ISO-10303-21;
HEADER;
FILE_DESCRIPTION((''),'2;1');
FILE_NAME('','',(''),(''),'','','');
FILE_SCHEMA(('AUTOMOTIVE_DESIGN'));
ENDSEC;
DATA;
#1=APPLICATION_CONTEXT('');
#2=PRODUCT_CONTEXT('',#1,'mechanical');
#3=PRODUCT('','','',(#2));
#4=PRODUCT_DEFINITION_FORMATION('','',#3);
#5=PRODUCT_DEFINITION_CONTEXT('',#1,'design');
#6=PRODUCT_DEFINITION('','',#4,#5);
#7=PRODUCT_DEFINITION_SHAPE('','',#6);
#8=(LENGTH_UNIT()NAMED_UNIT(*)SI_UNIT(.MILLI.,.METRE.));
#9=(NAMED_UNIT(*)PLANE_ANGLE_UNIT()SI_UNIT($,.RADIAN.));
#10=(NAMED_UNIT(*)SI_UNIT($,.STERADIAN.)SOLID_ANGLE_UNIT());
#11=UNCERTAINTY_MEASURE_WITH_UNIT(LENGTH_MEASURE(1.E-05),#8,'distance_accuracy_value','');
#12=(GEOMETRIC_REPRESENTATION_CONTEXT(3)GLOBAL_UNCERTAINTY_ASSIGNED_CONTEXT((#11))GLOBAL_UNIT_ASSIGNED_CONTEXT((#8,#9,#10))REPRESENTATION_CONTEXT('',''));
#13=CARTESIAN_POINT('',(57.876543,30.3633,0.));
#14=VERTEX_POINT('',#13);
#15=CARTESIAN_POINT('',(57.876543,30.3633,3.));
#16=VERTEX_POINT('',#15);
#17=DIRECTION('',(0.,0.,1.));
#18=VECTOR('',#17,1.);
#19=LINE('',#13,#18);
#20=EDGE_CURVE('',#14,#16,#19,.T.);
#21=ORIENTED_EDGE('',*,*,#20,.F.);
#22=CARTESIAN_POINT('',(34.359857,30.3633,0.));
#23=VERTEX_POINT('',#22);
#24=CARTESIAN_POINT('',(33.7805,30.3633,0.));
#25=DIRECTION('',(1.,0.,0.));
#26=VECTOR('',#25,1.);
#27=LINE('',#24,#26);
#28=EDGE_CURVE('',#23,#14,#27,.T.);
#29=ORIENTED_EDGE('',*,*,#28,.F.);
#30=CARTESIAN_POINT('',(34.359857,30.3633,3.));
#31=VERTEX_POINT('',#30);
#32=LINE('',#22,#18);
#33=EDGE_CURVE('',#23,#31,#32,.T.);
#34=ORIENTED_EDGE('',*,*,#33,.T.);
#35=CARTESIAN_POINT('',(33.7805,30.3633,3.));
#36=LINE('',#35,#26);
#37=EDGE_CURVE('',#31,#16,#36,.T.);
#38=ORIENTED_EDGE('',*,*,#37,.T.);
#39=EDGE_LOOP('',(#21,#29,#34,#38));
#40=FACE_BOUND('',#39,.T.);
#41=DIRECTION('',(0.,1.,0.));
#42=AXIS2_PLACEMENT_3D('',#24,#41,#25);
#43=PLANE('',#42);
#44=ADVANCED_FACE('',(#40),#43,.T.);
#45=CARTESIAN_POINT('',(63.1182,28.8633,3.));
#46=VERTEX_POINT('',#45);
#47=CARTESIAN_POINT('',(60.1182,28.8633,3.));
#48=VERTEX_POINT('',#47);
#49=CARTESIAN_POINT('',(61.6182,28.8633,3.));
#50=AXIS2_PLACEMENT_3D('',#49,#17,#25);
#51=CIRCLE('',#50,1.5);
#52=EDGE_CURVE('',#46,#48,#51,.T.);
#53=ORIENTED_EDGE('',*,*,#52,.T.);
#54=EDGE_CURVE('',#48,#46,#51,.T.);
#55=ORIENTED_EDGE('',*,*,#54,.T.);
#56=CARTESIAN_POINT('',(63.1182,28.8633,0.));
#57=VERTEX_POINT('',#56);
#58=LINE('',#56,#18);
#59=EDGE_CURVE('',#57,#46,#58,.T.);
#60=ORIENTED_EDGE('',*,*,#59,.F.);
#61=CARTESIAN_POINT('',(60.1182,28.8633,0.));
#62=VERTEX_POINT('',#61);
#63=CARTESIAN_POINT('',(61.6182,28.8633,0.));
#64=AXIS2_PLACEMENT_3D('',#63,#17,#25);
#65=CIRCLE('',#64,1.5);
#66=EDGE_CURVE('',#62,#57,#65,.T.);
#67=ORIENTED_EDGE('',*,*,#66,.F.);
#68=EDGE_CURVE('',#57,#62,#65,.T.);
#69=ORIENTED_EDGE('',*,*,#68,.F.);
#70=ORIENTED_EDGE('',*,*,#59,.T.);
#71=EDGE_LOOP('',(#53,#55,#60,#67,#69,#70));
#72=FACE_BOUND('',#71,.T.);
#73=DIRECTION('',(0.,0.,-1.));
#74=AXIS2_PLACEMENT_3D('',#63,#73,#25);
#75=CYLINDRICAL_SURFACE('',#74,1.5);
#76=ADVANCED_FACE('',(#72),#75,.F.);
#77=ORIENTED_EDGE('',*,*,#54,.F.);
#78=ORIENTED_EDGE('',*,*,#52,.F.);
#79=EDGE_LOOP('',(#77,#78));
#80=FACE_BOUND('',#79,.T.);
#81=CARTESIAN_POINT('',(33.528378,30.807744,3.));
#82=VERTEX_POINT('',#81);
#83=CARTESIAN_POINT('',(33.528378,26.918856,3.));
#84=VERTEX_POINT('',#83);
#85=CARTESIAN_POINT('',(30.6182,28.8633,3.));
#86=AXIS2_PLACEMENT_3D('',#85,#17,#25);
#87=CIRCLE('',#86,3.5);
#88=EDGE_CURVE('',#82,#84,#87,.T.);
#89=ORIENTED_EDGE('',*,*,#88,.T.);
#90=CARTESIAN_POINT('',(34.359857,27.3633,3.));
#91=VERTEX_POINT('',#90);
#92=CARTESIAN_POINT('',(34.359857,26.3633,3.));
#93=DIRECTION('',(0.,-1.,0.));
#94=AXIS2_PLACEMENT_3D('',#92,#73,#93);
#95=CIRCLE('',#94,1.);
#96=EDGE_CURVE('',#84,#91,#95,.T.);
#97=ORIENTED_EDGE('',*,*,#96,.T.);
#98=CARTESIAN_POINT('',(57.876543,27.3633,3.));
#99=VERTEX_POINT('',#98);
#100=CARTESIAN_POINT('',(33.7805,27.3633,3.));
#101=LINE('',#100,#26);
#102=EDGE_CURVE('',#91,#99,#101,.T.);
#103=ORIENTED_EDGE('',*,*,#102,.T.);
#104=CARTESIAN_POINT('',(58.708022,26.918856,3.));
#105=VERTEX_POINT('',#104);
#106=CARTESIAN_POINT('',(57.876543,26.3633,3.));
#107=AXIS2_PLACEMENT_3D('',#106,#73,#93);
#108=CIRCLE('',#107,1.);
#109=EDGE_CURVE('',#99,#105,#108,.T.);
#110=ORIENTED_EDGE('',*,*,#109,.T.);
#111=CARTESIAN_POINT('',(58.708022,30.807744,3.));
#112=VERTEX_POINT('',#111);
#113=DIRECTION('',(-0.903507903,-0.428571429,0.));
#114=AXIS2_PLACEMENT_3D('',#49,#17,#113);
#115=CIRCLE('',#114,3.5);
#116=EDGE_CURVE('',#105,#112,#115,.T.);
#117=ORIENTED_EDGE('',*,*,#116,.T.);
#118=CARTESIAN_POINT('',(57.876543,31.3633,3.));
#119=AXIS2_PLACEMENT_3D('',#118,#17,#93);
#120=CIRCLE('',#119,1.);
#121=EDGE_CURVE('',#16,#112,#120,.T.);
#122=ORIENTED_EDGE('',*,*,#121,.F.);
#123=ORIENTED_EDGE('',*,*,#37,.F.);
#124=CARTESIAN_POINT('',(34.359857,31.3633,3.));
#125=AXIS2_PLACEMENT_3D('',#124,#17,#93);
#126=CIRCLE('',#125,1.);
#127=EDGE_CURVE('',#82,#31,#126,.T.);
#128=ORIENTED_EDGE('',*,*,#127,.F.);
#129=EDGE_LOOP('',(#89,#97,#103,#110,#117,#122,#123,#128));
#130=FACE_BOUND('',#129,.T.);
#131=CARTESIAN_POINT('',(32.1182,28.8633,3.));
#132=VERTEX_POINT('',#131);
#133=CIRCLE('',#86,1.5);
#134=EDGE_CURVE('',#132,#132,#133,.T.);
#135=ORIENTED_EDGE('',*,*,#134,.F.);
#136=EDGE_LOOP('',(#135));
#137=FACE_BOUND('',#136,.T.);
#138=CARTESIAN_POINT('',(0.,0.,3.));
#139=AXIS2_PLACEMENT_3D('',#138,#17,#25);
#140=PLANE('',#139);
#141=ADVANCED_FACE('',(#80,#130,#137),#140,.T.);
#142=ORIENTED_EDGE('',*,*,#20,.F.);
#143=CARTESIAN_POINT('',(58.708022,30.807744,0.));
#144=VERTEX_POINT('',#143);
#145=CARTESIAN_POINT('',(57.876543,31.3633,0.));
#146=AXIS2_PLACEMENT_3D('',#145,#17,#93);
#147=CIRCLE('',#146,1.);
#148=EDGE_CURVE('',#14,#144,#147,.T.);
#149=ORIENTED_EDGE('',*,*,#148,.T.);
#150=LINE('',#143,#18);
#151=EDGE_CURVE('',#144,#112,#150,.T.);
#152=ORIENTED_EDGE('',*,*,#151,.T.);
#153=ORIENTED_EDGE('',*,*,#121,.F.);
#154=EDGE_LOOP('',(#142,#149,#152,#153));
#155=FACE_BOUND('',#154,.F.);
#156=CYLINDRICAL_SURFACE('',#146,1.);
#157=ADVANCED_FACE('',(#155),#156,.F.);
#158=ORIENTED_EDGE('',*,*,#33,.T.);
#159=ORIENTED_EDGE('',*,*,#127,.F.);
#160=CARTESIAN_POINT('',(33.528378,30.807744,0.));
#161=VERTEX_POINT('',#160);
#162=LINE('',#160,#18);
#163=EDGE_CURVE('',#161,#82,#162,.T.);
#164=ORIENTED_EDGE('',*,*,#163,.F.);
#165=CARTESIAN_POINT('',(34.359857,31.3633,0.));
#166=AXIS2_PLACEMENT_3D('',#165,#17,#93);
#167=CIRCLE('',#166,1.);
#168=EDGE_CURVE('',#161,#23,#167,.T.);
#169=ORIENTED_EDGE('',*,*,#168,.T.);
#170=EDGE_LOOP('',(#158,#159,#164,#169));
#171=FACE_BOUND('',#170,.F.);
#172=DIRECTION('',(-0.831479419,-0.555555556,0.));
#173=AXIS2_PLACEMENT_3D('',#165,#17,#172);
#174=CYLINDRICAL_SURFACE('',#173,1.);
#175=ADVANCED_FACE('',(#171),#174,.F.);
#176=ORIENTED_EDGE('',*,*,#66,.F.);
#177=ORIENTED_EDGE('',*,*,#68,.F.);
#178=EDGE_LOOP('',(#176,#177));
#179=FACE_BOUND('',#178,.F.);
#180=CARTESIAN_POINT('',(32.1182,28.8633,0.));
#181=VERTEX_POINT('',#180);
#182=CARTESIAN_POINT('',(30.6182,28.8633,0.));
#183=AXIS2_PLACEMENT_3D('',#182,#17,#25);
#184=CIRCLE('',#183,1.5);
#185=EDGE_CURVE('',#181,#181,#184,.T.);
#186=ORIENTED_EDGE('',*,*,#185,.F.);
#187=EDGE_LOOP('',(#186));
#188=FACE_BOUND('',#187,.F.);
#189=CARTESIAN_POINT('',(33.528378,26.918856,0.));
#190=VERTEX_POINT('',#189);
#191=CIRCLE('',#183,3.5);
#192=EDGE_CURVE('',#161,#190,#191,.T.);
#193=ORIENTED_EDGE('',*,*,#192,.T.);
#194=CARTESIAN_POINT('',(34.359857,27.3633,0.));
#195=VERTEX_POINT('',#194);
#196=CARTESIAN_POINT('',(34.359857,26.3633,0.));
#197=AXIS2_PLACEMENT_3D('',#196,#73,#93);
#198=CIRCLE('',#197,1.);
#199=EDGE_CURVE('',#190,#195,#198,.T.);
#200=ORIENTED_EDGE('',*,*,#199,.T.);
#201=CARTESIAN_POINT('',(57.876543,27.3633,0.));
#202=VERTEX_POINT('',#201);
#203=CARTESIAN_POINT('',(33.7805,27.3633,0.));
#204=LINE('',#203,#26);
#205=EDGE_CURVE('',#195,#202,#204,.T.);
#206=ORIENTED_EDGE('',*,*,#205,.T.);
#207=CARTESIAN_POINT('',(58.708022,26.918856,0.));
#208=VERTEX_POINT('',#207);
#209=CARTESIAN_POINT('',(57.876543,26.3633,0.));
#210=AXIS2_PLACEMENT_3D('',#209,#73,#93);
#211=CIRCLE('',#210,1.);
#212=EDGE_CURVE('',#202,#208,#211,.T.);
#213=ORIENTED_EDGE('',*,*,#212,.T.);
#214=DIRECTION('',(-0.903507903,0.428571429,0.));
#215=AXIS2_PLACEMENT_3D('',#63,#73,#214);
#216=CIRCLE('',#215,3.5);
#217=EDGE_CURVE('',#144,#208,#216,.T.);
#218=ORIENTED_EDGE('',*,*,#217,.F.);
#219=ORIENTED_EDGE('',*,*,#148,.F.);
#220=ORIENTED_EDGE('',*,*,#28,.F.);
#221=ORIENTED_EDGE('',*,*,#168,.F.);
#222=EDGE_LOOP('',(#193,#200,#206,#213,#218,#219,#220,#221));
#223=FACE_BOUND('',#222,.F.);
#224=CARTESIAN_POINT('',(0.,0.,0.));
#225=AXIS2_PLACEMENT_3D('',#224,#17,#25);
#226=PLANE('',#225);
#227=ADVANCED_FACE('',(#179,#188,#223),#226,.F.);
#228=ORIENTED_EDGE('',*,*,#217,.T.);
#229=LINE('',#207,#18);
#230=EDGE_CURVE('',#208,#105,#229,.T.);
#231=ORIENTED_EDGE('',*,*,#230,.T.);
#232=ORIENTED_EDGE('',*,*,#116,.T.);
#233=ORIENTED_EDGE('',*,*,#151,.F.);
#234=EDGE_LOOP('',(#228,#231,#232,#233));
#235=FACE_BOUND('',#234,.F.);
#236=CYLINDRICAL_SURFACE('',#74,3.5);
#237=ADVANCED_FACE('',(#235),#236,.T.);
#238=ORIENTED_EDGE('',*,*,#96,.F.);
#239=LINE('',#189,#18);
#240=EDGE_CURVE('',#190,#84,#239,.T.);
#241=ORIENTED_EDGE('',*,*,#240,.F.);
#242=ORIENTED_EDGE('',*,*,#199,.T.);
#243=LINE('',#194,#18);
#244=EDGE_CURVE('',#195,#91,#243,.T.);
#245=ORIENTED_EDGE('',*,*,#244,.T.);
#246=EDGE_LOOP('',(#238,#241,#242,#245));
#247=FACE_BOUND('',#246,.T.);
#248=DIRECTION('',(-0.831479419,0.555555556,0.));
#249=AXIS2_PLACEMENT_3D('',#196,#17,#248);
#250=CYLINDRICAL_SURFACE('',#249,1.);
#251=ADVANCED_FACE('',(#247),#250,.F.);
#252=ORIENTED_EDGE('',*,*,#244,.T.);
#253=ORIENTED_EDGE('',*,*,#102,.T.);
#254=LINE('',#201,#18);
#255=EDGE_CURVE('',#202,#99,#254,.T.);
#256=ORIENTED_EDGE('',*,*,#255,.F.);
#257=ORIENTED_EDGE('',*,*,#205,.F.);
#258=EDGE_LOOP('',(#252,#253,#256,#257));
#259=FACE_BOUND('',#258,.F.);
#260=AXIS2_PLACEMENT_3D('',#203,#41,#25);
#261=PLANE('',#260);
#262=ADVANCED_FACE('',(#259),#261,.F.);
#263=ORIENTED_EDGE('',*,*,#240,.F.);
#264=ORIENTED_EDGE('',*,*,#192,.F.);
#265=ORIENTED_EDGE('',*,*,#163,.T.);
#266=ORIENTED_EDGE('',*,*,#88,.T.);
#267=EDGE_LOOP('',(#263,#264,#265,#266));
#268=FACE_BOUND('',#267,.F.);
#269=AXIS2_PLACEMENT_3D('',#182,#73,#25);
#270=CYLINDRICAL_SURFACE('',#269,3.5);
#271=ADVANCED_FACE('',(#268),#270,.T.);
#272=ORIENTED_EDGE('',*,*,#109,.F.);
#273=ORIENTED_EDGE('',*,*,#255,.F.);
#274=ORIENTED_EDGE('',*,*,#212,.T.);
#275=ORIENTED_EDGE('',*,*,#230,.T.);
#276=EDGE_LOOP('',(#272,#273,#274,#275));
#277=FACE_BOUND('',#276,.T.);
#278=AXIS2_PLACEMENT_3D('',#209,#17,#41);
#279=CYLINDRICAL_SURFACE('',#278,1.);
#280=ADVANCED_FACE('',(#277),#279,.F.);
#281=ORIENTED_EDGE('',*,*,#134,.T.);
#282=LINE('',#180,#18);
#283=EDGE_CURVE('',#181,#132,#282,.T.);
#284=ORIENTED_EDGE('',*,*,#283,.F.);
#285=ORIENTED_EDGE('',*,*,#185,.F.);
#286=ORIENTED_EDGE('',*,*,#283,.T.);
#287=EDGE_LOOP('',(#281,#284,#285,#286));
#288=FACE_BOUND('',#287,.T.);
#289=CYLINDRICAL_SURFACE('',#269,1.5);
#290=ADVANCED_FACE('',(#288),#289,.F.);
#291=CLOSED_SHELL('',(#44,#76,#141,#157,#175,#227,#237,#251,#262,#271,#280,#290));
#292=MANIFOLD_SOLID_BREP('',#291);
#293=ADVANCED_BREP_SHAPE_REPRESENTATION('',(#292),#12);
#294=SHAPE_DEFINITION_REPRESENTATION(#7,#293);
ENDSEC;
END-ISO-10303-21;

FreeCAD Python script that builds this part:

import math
import FreeCAD as App
import Part
import Sketcher
Q = App.Units.Quantity


def edges_at(feature, points):
    """Names of the edges that pass closest to the given points."""
    edges = feature.Shape.Edges
    near = lambda p: min(range(len(edges)), key=lambda i: edges[i].distToShape(Part.Vertex(*p))[0])
    return sorted({f"Edge{near(p) + 1}" for p in points})

doc = App.newDocument("Part")
body = doc.addObject("PartDesign::Body", "Body")

sketch1 = body.newObject("Sketcher::SketchObject", "Sketch")
sketch1.AttachmentSupport = (doc.getObject("XY_Plane"), [""])
sketch1.MapMode = "FlatFace"
sketch1.addGeometry([
    Part.ArcOfCircle(Part.Circle(App.Vector(30.6, 28.9, 0), App.Vector(0, 0, 1), 3.5), math.radians(25), math.radians(335)),
    Part.LineSegment(App.Vector(33.8, 27.4, 0), App.Vector(58.5, 27.4, 0)),
    Part.ArcOfCircle(Part.Circle(App.Vector(61.6, 28.9, 0), App.Vector(0, 0, 1), 3.5), math.radians(-155), math.radians(155)),
    Part.LineSegment(App.Vector(58.5, 30.4, 0), App.Vector(33.8, 30.4, 0)),
    Part.Circle(App.Vector(30.6, 28.9, 0), App.Vector(0, 0, 1), 1.5),
    Part.Circle(App.Vector(61.6, 28.9, 0), App.Vector(0, 0, 1), 1.5),
], False)
sketch1.addConstraint([
    Sketcher.Constraint("Coincident", 0, 2, 1, 1),
    Sketcher.Constraint("Coincident", 1, 2, 2, 1),
    Sketcher.Constraint("Coincident", 2, 2, 3, 1),
    Sketcher.Constraint("Coincident", 3, 2, 0, 1),
    Sketcher.Constraint("Horizontal", 1),
    Sketcher.Constraint("Horizontal", 3),
    Sketcher.Constraint("Coincident", 4, 3, 0, 3),
    Sketcher.Constraint("Coincident", 5, 3, 2, 3),
    Sketcher.Constraint("Equal", 0, 2),
    Sketcher.Constraint("Equal", 4, 5),
    Sketcher.Constraint("Horizontal", 0, 3, 2, 3),
    Sketcher.Constraint("Vertical", 1, 2, 2, 2),
    Sketcher.Constraint("Diameter", 4, Q("3 mm")),
    Sketcher.Constraint("Radius", 0, Q("3.5 mm")),
    Sketcher.Constraint("DistanceX", 0, 3, 2, 3, Q("31 mm")),
    Sketcher.Constraint("DistanceY", 1, 2, 2, 2, Q("3 mm")),
    Sketcher.Constraint("DistanceX", -1, 1, 1, 2, Q("58.456 mm")),
    Sketcher.Constraint("DistanceY", -1, 1, 0, 3, Q("28.8633 mm")),
])
pad1 = body.newObject("PartDesign::Pad", "Pad")
pad1.Profile = sketch1
pad1.Length = 3
doc.recompute()

fillet = body.newObject("PartDesign::Fillet", "Fillet")
fillet.Base = (pad1, edges_at(pad1, [
    (33.781, 30.363, 1.5),
    (58.456, 30.363, 1.5),
    (33.781, 27.363, 1.5),
    (58.456, 27.363, 1.5),
]))
fillet.Radius = 1

doc.recompute()
